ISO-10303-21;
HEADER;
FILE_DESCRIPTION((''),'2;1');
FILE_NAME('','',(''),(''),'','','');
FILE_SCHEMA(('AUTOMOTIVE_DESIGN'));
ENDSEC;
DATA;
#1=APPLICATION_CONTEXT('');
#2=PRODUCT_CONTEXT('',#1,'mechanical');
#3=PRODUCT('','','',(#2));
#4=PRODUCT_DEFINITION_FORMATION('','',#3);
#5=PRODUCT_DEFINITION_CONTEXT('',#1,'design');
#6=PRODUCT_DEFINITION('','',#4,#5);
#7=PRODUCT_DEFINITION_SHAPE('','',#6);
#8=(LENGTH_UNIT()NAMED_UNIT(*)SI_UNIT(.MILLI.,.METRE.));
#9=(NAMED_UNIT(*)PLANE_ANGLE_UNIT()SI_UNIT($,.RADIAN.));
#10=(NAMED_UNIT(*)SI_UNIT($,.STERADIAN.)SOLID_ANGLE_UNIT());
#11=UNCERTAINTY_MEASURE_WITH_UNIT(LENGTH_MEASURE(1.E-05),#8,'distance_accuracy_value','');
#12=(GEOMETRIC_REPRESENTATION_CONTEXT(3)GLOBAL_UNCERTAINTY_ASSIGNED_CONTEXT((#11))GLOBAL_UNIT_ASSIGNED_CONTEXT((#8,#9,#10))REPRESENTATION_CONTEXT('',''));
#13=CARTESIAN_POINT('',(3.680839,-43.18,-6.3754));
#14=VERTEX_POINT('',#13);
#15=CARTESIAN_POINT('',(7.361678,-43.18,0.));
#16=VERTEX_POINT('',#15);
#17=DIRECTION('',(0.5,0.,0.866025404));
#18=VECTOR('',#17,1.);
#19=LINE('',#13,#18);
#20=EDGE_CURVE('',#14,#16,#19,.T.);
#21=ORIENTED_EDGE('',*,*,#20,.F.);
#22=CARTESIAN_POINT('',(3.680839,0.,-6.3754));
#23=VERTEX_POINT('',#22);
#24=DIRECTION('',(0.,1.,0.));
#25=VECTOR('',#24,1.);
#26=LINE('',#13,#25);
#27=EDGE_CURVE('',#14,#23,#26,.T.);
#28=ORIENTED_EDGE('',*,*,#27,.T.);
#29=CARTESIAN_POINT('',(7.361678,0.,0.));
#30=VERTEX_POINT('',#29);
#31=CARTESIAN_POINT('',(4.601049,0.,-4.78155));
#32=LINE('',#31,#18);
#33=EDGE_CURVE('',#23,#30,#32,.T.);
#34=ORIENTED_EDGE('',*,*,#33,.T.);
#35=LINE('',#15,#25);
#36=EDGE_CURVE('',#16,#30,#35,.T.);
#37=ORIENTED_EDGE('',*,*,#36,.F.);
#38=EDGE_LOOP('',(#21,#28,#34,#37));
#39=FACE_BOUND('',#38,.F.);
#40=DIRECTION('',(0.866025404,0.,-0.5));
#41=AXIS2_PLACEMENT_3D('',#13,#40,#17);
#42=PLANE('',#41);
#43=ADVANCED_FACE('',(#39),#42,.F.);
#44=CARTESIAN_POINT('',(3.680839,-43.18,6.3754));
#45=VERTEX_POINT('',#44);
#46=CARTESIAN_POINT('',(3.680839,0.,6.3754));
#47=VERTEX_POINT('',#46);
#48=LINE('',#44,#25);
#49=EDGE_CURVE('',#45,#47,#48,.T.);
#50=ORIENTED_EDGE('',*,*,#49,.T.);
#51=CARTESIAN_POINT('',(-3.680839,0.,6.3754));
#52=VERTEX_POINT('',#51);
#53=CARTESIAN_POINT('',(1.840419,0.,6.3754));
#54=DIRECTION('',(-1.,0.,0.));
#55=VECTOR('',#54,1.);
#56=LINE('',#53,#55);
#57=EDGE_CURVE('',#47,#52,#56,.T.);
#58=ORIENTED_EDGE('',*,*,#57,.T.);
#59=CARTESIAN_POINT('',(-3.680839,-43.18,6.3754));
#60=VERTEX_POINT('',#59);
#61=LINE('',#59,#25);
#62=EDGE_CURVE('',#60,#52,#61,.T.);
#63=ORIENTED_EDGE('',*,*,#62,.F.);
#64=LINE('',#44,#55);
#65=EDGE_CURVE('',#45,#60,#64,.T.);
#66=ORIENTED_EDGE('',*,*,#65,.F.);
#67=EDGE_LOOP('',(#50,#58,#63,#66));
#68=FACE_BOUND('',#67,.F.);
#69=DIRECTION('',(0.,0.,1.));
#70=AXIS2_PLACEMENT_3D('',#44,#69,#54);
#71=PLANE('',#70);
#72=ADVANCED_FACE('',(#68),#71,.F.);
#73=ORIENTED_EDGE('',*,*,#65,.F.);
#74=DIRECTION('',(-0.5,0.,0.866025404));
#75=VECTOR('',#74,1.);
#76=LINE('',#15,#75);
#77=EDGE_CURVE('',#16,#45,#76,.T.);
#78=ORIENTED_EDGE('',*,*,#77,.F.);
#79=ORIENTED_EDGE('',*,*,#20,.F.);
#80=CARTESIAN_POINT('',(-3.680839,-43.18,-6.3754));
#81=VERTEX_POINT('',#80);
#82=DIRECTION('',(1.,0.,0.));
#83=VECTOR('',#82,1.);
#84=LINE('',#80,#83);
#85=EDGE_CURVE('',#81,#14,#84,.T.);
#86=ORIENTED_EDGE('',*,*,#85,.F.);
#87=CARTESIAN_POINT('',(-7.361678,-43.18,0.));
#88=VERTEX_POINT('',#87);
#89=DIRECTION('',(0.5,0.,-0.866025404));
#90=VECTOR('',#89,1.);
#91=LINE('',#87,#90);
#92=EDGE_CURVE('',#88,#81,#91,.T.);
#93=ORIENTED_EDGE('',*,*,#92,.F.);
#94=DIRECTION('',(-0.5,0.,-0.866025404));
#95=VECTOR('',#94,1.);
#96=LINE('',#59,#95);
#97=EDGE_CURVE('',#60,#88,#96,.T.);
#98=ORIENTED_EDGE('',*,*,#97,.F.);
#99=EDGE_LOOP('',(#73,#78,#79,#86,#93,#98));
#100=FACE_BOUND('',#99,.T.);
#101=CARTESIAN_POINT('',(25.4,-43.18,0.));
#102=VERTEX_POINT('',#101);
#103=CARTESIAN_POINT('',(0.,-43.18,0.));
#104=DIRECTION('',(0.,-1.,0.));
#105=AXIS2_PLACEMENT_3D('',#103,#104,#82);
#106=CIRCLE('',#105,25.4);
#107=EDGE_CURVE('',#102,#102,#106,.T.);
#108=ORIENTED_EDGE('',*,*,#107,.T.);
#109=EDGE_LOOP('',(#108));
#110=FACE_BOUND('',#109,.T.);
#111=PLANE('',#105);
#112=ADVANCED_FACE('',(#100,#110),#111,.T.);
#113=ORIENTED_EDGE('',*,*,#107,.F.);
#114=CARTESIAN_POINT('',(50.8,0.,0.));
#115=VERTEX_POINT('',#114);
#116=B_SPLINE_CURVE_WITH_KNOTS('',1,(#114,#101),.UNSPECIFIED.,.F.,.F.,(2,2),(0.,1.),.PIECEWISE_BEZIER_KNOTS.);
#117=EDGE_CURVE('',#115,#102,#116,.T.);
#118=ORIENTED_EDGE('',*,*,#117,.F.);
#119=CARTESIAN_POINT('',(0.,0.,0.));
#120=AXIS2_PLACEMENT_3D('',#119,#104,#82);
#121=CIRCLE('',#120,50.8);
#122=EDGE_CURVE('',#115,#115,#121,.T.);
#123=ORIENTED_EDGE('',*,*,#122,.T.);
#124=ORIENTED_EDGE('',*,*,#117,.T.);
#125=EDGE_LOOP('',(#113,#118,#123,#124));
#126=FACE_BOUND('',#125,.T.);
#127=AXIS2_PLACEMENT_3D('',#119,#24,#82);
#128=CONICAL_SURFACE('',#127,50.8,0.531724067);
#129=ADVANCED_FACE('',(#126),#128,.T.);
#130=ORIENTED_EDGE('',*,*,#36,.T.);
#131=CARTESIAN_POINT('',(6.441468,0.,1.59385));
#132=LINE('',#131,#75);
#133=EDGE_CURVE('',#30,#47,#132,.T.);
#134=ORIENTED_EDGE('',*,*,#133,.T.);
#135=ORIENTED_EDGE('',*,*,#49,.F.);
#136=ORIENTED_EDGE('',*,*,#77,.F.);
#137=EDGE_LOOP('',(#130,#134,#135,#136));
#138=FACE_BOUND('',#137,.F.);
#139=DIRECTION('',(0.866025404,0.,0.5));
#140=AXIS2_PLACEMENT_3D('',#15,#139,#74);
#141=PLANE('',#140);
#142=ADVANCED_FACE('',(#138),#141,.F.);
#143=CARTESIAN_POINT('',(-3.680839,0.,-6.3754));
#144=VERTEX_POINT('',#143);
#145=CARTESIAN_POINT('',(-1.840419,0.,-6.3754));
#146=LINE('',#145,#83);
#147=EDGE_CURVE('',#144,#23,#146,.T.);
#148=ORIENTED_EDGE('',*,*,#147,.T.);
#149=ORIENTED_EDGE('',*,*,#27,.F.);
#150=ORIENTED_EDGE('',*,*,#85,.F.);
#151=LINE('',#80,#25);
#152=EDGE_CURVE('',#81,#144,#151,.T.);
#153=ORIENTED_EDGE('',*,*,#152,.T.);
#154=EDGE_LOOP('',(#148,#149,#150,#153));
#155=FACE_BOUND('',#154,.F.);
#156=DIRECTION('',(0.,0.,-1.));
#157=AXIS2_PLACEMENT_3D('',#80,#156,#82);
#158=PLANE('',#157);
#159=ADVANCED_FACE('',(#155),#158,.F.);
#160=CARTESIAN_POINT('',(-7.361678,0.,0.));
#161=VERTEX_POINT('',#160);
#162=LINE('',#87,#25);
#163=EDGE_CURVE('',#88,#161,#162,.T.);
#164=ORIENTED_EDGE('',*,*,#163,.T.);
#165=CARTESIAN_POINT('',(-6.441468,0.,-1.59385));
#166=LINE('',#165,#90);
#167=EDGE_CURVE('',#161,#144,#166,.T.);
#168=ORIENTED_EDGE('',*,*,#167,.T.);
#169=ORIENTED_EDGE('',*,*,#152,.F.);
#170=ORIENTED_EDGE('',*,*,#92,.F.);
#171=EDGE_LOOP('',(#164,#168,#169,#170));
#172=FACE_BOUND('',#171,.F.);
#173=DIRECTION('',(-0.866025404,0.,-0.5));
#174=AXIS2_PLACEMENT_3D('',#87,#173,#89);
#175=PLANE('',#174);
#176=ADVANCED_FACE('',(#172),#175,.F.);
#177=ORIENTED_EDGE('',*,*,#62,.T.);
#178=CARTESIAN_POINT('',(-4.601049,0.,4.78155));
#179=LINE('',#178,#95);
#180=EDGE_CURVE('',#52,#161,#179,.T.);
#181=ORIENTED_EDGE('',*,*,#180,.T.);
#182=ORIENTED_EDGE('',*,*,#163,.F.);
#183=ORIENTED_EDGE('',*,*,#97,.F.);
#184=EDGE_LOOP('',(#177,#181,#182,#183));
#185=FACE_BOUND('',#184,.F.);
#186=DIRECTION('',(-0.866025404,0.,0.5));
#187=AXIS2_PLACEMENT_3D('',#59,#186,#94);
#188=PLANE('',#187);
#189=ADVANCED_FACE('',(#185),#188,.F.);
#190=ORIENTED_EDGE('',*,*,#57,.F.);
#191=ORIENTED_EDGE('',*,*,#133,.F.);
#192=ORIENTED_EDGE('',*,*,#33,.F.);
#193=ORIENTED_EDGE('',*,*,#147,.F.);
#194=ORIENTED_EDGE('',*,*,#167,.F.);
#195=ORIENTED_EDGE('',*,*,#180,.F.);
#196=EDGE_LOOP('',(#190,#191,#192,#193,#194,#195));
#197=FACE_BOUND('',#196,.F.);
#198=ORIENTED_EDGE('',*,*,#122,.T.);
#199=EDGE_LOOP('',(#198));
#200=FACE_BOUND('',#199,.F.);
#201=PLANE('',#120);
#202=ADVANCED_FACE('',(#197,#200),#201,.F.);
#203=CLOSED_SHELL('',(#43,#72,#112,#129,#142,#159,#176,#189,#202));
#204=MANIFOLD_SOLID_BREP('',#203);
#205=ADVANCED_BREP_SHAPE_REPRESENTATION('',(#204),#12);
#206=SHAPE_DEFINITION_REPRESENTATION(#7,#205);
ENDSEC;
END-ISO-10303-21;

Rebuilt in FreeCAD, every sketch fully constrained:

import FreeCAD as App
import Part
import Sketcher
Q = App.Units.Quantity


def add_polygon(sketch, points):
    """Adds a closed chain of lines whose ends are joined by coincident constraints."""
    first, n = sketch.GeometryCount, len(points)
    for a, b in zip(points, points[1:] + points[:1]):
        sketch.addGeometry(Part.LineSegment(App.Vector(*a, 0), App.Vector(*b, 0)), False)
    for i in range(n):
        sketch.addConstraint(Sketcher.Constraint("Coincident", first + i, 2, first + (i + 1) % n, 1))

doc = App.newDocument("Part")
body = doc.addObject("PartDesign::Body", "Body")

sketch1 = body.newObject("Sketcher::SketchObject", "Sketch")
sketch1.AttachmentSupport = (doc.getObject("XZ_Plane"), [""])
sketch1.MapMode = "FlatFace"
sketch1.addGeometry(Part.Circle(App.Vector(0, 0, 0), App.Vector(0, 0, 1), 51), False)
sketch1.addConstraint(Sketcher.Constraint("Coincident", 0, 3, -1, 1))
sketch1.addConstraint(Sketcher.Constraint("Diameter", 0, Q("4 in")))

sketch2 = body.newObject("Sketcher::SketchObject", "Sketch001")
sketch2.AttachmentSupport = (doc.getObject("XZ_Plane"), [""])
sketch2.MapMode = "FlatFace"
sketch2.AttachmentOffset = App.Placement(App.Vector(0, 0, 1.7 * 25.4), App.Rotation())
sketch2.addGeometry(Part.Circle(App.Vector(0, 0, 0), App.Vector(0, 0, 1), 25), False)
sketch2.addConstraint(Sketcher.Constraint("Coincident", 0, 3, -1, 1))
sketch2.addConstraint(Sketcher.Constraint("Diameter", 0, Q("2 in")))

additiveloft = body.newObject("PartDesign::AdditiveLoft", "AdditiveLoft")
additiveloft.Profile = sketch1
additiveloft.Sections = [sketch2]

sketch3 = body.newObject("Sketcher::SketchObject", "Sketch002")
sketch3.AttachmentSupport = (doc.getObject("XZ_Plane"), [""])
sketch3.MapMode = "FlatFace"
sketch3.AttachmentOffset = App.Placement(App.Vector(0, 0, 1.7 * 25.4), App.Rotation())
add_polygon(sketch3, [(-4, -6), (4, -6), (7, 0), (4, 6), (-4, 6), (-7, 0)])
sketch3.addConstraint(Sketcher.Constraint("Horizontal", 0))
sketch3.addConstraint(Sketcher.Constraint("Horizontal", 3))
sketch3.addConstraint(Sketcher.Constraint("Symmetric", 0, 2, 3, 2, -1, 1))
sketch3.addConstraint(Sketcher.Constraint("Symmetric", 1, 2, 4, 2, -1, 1))
sketch3.addConstraint(Sketcher.Constraint("PointOnObject", 1, 2, -1))
sketch3.addConstraint(Sketcher.Constraint("Parallel", 2, 5))
sketch3.addConstraint(Sketcher.Constraint("Vertical", 0, 2, 2, 2))
sketch3.addConstraint(Sketcher.Constraint("Angle", 1, Q("60 deg")))
sketch3.addConstraint(Sketcher.Constraint("DistanceY", 0, 2, -1, 1, Q("0.251 in")))
sketch3.addConstraint(Sketcher.Constraint("DistanceX", 0, 1, 0, 2, Q("7.361678 mm")))
pocket1 = body.newObject("PartDesign::Pocket", "Pocket")
pocket1.Profile = sketch3
pocket1.Length = Q("2.39 in")

doc.recompute()
